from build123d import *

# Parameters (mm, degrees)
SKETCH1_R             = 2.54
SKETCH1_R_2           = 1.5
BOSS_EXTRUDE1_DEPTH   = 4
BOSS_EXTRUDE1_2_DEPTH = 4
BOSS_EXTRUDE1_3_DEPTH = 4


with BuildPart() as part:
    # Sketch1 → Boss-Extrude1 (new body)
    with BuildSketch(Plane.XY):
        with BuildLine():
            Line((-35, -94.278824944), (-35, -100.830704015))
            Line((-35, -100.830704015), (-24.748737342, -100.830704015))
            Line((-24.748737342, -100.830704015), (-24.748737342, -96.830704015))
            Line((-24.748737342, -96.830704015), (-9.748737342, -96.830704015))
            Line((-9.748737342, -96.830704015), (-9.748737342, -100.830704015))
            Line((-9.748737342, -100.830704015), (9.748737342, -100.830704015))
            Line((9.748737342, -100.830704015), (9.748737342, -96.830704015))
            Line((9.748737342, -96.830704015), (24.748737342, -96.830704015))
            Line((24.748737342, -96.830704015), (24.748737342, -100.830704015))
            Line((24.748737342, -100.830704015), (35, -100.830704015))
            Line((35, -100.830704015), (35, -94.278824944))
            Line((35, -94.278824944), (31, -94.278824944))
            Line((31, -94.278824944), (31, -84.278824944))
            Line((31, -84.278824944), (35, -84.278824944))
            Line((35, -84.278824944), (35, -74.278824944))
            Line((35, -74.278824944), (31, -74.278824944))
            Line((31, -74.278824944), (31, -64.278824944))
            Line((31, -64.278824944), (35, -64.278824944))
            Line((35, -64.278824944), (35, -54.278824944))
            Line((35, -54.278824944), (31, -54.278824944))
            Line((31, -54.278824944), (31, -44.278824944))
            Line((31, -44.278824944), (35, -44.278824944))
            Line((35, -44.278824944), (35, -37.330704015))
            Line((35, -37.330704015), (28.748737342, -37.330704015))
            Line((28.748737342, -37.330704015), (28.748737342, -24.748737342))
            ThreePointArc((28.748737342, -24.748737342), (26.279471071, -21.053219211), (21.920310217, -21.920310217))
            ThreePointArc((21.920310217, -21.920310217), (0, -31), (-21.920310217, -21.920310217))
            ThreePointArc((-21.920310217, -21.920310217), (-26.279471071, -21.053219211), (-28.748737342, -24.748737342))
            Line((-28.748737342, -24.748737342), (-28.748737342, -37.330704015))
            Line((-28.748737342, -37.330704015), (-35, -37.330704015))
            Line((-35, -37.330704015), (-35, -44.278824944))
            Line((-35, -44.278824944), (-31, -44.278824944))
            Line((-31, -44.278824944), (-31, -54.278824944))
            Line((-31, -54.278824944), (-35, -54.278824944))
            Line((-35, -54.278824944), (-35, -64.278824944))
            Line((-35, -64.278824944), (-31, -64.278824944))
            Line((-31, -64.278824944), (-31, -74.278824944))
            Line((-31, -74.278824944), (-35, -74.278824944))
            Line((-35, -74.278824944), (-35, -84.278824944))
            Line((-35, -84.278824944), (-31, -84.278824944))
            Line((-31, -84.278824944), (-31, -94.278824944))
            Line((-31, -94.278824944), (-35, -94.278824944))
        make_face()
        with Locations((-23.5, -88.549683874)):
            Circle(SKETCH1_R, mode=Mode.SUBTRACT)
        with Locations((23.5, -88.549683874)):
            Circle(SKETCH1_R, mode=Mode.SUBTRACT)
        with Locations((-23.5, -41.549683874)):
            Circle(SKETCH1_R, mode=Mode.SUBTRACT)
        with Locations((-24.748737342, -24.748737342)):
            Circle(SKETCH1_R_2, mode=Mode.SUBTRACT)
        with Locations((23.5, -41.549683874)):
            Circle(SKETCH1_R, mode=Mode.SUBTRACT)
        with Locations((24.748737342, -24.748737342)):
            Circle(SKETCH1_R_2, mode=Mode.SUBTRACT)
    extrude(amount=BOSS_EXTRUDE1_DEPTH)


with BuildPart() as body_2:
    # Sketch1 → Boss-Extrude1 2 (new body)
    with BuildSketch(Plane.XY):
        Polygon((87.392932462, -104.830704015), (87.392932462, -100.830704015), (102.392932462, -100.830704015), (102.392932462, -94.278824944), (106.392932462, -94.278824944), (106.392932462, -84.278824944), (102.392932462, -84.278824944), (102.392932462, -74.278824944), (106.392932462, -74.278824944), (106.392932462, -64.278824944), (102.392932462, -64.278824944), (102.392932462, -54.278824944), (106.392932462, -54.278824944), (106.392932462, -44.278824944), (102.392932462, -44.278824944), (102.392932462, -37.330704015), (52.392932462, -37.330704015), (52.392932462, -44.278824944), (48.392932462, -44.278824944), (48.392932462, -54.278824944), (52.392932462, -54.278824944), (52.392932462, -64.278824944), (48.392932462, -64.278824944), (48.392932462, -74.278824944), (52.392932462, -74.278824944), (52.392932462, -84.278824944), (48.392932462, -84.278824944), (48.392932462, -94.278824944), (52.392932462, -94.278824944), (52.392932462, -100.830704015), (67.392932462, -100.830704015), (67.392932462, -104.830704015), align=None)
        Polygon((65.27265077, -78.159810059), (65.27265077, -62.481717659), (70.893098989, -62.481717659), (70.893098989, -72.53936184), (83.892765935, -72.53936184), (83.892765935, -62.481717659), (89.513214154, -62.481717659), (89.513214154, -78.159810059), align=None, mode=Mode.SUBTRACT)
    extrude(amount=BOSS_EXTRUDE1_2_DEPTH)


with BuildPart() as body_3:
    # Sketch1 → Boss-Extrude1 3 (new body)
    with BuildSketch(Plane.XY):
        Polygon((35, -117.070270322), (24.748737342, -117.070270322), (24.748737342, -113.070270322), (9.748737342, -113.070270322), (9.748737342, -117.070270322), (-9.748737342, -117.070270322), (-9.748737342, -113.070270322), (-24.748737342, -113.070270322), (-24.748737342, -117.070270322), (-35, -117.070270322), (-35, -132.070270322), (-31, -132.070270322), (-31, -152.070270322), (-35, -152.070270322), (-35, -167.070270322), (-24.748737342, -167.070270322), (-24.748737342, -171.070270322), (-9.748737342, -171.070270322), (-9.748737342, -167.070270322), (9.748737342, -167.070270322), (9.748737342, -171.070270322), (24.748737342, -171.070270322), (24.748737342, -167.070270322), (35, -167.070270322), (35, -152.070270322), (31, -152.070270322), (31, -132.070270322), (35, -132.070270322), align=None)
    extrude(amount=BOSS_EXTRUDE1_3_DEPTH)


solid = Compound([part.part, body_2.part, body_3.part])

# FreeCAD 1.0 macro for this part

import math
import FreeCAD as App
import Part
import Sketcher


def add_polygon(sketch, points):
    """Adds a closed chain of lines whose ends are joined by coincident constraints."""
    first, n = sketch.GeometryCount, len(points)
    for a, b in zip(points, points[1:] + points[:1]):
        sketch.addGeometry(Part.LineSegment(App.Vector(*a, 0), App.Vector(*b, 0)), False)
    for i in range(n):
        sketch.addConstraint(Sketcher.Constraint("Coincident", first + i, 2, first + (i + 1) % n, 1))

doc = App.newDocument("Part")
params = doc.addObject("Spreadsheet::Sheet", "Params")
for row, (alias, value) in enumerate([
    ("sketch1_diameter", "3 mm"),
    ("sketch1_radius", "4 mm"),
    ("sketch1_radius2", "31 mm"),
    ("sketch1_diameter2", "5.08 mm"),
    ("sketch1_width", "15 mm"),
    ("pad1_length", "4 mm"),
    ("sketch2_width", "15 mm"),
    ("sketch2_width2", "4 mm"),
    ("sketch2_width3", "50 mm"),
    ("sketch2_height", "10 mm"),
    ("pad2_length", "4 mm"),
    ("sketch3_width", "15 mm"),
    ("sketch3_width2", "4 mm"),
    ("sketch3_height", "20 mm"),
    ("pad3_length", "4 mm"),
], start=1):
    params.set(f"A{row}", alias)
    params.set(f"B{row}", "=" + value)
    params.setAlias(f"B{row}", alias)

body = doc.addObject("PartDesign::Body", "Body")

# Sketch on XY plane
sketch1 = doc.addObject("Sketcher::SketchObject", "Sketch")
body.addObject(sketch1)
sketch1.AttachmentSupport = (doc.XY_Plane, [""])
sketch1.MapMode = "FlatFace"
sketch1.addGeometry(Part.LineSegment(App.Vector(-35, -94.3, 0), App.Vector(-35, -100.8, 0)), False)
sketch1.addGeometry(Part.LineSegment(App.Vector(-35, -100.8, 0), App.Vector(-24.7, -100.8, 0)), False)
sketch1.addGeometry(Part.LineSegment(App.Vector(-24.7, -100.8, 0), App.Vector(-24.7, -96.8, 0)), False)
sketch1.addGeometry(Part.LineSegment(App.Vector(-24.7, -96.8, 0), App.Vector(-9.7, -96.8, 0)), False)
sketch1.addGeometry(Part.LineSegment(App.Vector(-9.7, -96.8, 0), App.Vector(-9.7, -100.8, 0)), False)
sketch1.addGeometry(Part.LineSegment(App.Vector(-9.7, -100.8, 0), App.Vector(9.7, -100.8, 0)), False)
sketch1.addGeometry(Part.LineSegment(App.Vector(9.7, -100.8, 0), App.Vector(9.7, -96.8, 0)), False)
sketch1.addGeometry(Part.LineSegment(App.Vector(9.7, -96.8, 0), App.Vector(24.7, -96.8, 0)), False)
sketch1.addGeometry(Part.LineSegment(App.Vector(24.7, -96.8, 0), App.Vector(24.7, -100.8, 0)), False)
sketch1.addGeometry(Part.LineSegment(App.Vector(24.7, -100.8, 0), App.Vector(35, -100.8, 0)), False)
sketch1.addGeometry(Part.LineSegment(App.Vector(35, -100.8, 0), App.Vector(35, -94.3, 0)), False)
sketch1.addGeometry(Part.LineSegment(App.Vector(35, -94.3, 0), App.Vector(31, -94.3, 0)), False)
sketch1.addGeometry(Part.LineSegment(App.Vector(31, -94.3, 0), App.Vector(31, -84.3, 0)), False)
sketch1.addGeometry(Part.LineSegment(App.Vector(31, -84.3, 0), App.Vector(35, -84.3, 0)), False)
sketch1.addGeometry(Part.LineSegment(App.Vector(35, -84.3, 0), App.Vector(35, -74.3, 0)), False)
sketch1.addGeometry(Part.LineSegment(App.Vector(35, -74.3, 0), App.Vector(31, -74.3, 0)), False)
sketch1.addGeometry(Part.LineSegment(App.Vector(31, -74.3, 0), App.Vector(31, -64.3, 0)), False)
sketch1.addGeometry(Part.LineSegment(App.Vector(31, -64.3, 0), App.Vector(35, -64.3, 0)), False)
sketch1.addGeometry(Part.LineSegment(App.Vector(35, -64.3, 0), App.Vector(35, -54.3, 0)), False)
sketch1.addGeometry(Part.LineSegment(App.Vector(35, -54.3, 0), App.Vector(31, -54.3, 0)), False)
sketch1.addGeometry(Part.LineSegment(App.Vector(31, -54.3, 0), App.Vector(31, -44.3, 0)), False)
sketch1.addGeometry(Part.LineSegment(App.Vector(31, -44.3, 0), App.Vector(35, -44.3, 0)), False)
sketch1.addGeometry(Part.LineSegment(App.Vector(35, -44.3, 0), App.Vector(35, -37.3, 0)), False)
sketch1.addGeometry(Part.LineSegment(App.Vector(35, -37.3, 0), App.Vector(28.7, -37.3, 0)), False)
sketch1.addGeometry(Part.LineSegment(App.Vector(28.7, -37.3, 0), App.Vector(28.7, -24.7, 0)), False)
sketch1.addGeometry(Part.ArcOfCircle(Part.Circle(App.Vector(24.7, -24.7, 0), App.Vector(0, 0, 1), 4), math.radians(0), math.radians(135)), False)
sketch1.addGeometry(Part.ArcOfCircle(Part.Circle(App.Vector(0, 0, 0), App.Vector(0, 0, 1), 31), math.radians(-135), math.radians(-45)), False)
sketch1.addGeometry(Part.ArcOfCircle(Part.Circle(App.Vector(-24.7, -24.7, 0), App.Vector(0, 0, 1), 4), math.radians(45), math.radians(180)), False)
sketch1.addGeometry(Part.LineSegment(App.Vector(-28.7, -24.7, 0), App.Vector(-28.7, -37.3, 0)), False)
sketch1.addGeometry(Part.LineSegment(App.Vector(-28.7, -37.3, 0), App.Vector(-35, -37.3, 0)), False)
sketch1.addGeometry(Part.LineSegment(App.Vector(-35, -37.3, 0), App.Vector(-35, -44.3, 0)), False)
sketch1.addGeometry(Part.LineSegment(App.Vector(-35, -44.3, 0), App.Vector(-31, -44.3, 0)), False)
sketch1.addGeometry(Part.LineSegment(App.Vector(-31, -44.3, 0), App.Vector(-31, -54.3, 0)), False)
sketch1.addGeometry(Part.LineSegment(App.Vector(-31, -54.3, 0), App.Vector(-35, -54.3, 0)), False)
sketch1.addGeometry(Part.LineSegment(App.Vector(-35, -54.3, 0), App.Vector(-35, -64.3, 0)), False)
sketch1.addGeometry(Part.LineSegment(App.Vector(-35, -64.3, 0), App.Vector(-31, -64.3, 0)), False)
sketch1.addGeometry(Part.LineSegment(App.Vector(-31, -64.3, 0), App.Vector(-31, -74.3, 0)), False)
sketch1.addGeometry(Part.LineSegment(App.Vector(-31, -74.3, 0), App.Vector(-35, -74.3, 0)), False)
sketch1.addGeometry(Part.LineSegment(App.Vector(-35, -74.3, 0), App.Vector(-35, -84.3, 0)), False)
sketch1.addGeometry(Part.LineSegment(App.Vector(-35, -84.3, 0), App.Vector(-31, -84.3, 0)), False)
sketch1.addGeometry(Part.LineSegment(App.Vector(-31, -84.3, 0), App.Vector(-31, -94.3, 0)), False)
sketch1.addGeometry(Part.LineSegment(App.Vector(-31, -94.3, 0), App.Vector(-35, -94.3, 0)), False)
sketch1.addGeometry(Part.Circle(App.Vector(-23.5, -88.5, 0), App.Vector(0, 0, 1), 2.5), False)
sketch1.addGeometry(Part.Circle(App.Vector(23.5, -88.5, 0), App.Vector(0, 0, 1), 2.5), False)
sketch1.addGeometry(Part.Circle(App.Vector(-23.5, -41.5, 0), App.Vector(0, 0, 1), 2.5), False)
sketch1.addGeometry(Part.Circle(App.Vector(-24.7, -24.7, 0), App.Vector(0, 0, 1), 1.5), False)
sketch1.addGeometry(Part.Circle(App.Vector(23.5, -41.5, 0), App.Vector(0, 0, 1), 2.5), False)
sketch1.addGeometry(Part.Circle(App.Vector(24.7, -24.7, 0), App.Vector(0, 0, 1), 1.5), False)
sketch1.addConstraint(Sketcher.Constraint("Coincident", 0, 2, 1, 1))
sketch1.addConstraint(Sketcher.Constraint("Coincident", 1, 2, 2, 1))
sketch1.addConstraint(Sketcher.Constraint("Coincident", 2, 2, 3, 1))
sketch1.addConstraint(Sketcher.Constraint("Coincident", 3, 2, 4, 1))
sketch1.addConstraint(Sketcher.Constraint("Coincident", 4, 2, 5, 1))
sketch1.addConstraint(Sketcher.Constraint("Coincident", 5, 2, 6, 1))
sketch1.addConstraint(Sketcher.Constraint("Coincident", 6, 2, 7, 1))
sketch1.addConstraint(Sketcher.Constraint("Coincident", 7, 2, 8, 1))
sketch1.addConstraint(Sketcher.Constraint("Coincident", 8, 2, 9, 1))
sketch1.addConstraint(Sketcher.Constraint("Coincident", 9, 2, 10, 1))
sketch1.addConstraint(Sketcher.Constraint("Coincident", 10, 2, 11, 1))
sketch1.addConstraint(Sketcher.Constraint("Coincident", 11, 2, 12, 1))
sketch1.addConstraint(Sketcher.Constraint("Coincident", 12, 2, 13, 1))
sketch1.addConstraint(Sketcher.Constraint("Coincident", 13, 2, 14, 1))
sketch1.addConstraint(Sketcher.Constraint("Coincident", 14, 2, 15, 1))
sketch1.addConstraint(Sketcher.Constraint("Coincident", 15, 2, 16, 1))
sketch1.addConstraint(Sketcher.Constraint("Coincident", 16, 2, 17, 1))
sketch1.addConstraint(Sketcher.Constraint("Coincident", 17, 2, 18, 1))
sketch1.addConstraint(Sketcher.Constraint("Coincident", 18, 2, 19, 1))
sketch1.addConstraint(Sketcher.Constraint("Coincident", 19, 2, 20, 1))
sketch1.addConstraint(Sketcher.Constraint("Coincident", 20, 2, 21, 1))
sketch1.addConstraint(Sketcher.Constraint("Coincident", 21, 2, 22, 1))
sketch1.addConstraint(Sketcher.Constraint("Coincident", 22, 2, 23, 1))
sketch1.addConstraint(Sketcher.Constraint("Coincident", 23, 2, 24, 1))
sketch1.addConstraint(Sketcher.Constraint("Tangent", 24, 2, 25, 1))
sketch1.addConstraint(Sketcher.Constraint("Tangent", 25, 2, 26, 2))
sketch1.addConstraint(Sketcher.Constraint("Tangent", 26, 1, 27, 1))
sketch1.addConstraint(Sketcher.Constraint("Tangent", 27, 2, 28, 1))
sketch1.addConstraint(Sketcher.Constraint("Coincident", 28, 2, 29, 1))
sketch1.addConstraint(Sketcher.Constraint("Coincident", 29, 2, 30, 1))
sketch1.addConstraint(Sketcher.Constraint("Coincident", 30, 2, 31, 1))
sketch1.addConstraint(Sketcher.Constraint("Coincident", 31, 2, 32, 1))
sketch1.addConstraint(Sketcher.Constraint("Coincident", 32, 2, 33, 1))
sketch1.addConstraint(Sketcher.Constraint("Coincident", 33, 2, 34, 1))
sketch1.addConstraint(Sketcher.Constraint("Coincident", 34, 2, 35, 1))
sketch1.addConstraint(Sketcher.Constraint("Coincident", 35, 2, 36, 1))
sketch1.addConstraint(Sketcher.Constraint("Coincident", 36, 2, 37, 1))
sketch1.addConstraint(Sketcher.Constraint("Coincident", 37, 2, 38, 1))
sketch1.addConstraint(Sketcher.Constraint("Coincident", 38, 2, 39, 1))
sketch1.addConstraint(Sketcher.Constraint("Coincident", 39, 2, 40, 1))
sketch1.addConstraint(Sketcher.Constraint("Coincident", 40, 2, 41, 1))
sketch1.addConstraint(Sketcher.Constraint("Coincident", 41, 2, 0, 1))
sketch1.addConstraint(Sketcher.Constraint("Vertical", 0))
sketch1.addConstraint(Sketcher.Constraint("Horizontal", 1))
sketch1.addConstraint(Sketcher.Constraint("Vertical", 2))
sketch1.addConstraint(Sketcher.Constraint("Horizontal", 3))
sketch1.addConstraint(Sketcher.Constraint("Vertical", 4))
sketch1.addConstraint(Sketcher.Constraint("Horizontal", 5))
sketch1.addConstraint(Sketcher.Constraint("Vertical", 6))
sketch1.addConstraint(Sketcher.Constraint("Horizontal", 7))
sketch1.addConstraint(Sketcher.Constraint("Vertical", 8))
sketch1.addConstraint(Sketcher.Constraint("Horizontal", 9))
sketch1.addConstraint(Sketcher.Constraint("Vertical", 10))
sketch1.addConstraint(Sketcher.Constraint("Horizontal", 11))
sketch1.addConstraint(Sketcher.Constraint("Vertical", 12))
sketch1.addConstraint(Sketcher.Constraint("Horizontal", 13))
sketch1.addConstraint(Sketcher.Constraint("Vertical", 14))
sketch1.addConstraint(Sketcher.Constraint("Horizontal", 15))
sketch1.addConstraint(Sketcher.Constraint("Vertical", 16))
sketch1.addConstraint(Sketcher.Constraint("Horizontal", 17))
sketch1.addConstraint(Sketcher.Constraint("Vertical", 18))
sketch1.addConstraint(Sketcher.Constraint("Horizontal", 19))
sketch1.addConstraint(Sketcher.Constraint("Vertical", 20))
sketch1.addConstraint(Sketcher.Constraint("Horizontal", 21))
sketch1.addConstraint(Sketcher.Constraint("Vertical", 22))
sketch1.addConstraint(Sketcher.Constraint("Horizontal", 23))
sketch1.addConstraint(Sketcher.Constraint("Vertical", 24))
sketch1.addConstraint(Sketcher.Constraint("Vertical", 28))
sketch1.addConstraint(Sketcher.Constraint("Horizontal", 29))
sketch1.addConstraint(Sketcher.Constraint("Vertical", 30))
sketch1.addConstraint(Sketcher.Constraint("Horizontal", 31))
sketch1.addConstraint(Sketcher.Constraint("Vertical", 32))
sketch1.addConstraint(Sketcher.Constraint("Horizontal", 33))
sketch1.addConstraint(Sketcher.Constraint("Vertical", 34))
sketch1.addConstraint(Sketcher.Constraint("Horizontal", 35))
sketch1.addConstraint(Sketcher.Constraint("Vertical", 36))
sketch1.addConstraint(Sketcher.Constraint("Horizontal", 37))
sketch1.addConstraint(Sketcher.Constraint("Vertical", 38))
sketch1.addConstraint(Sketcher.Constraint("Horizontal", 39))
sketch1.addConstraint(Sketcher.Constraint("Vertical", 40))
sketch1.addConstraint(Sketcher.Constraint("Horizontal", 41))
sketch1.addConstraint(Sketcher.Constraint("Coincident", 26, 3, -1, 1))
sketch1.addConstraint(Sketcher.Constraint("Coincident", 45, 3, 27, 3))
sketch1.addConstraint(Sketcher.Constraint("Coincident", 47, 3, 25, 3))
sketch1.addConstraint(Sketcher.Constraint("Equal", 25, 27))
sketch1.addConstraint(Sketcher.Constraint("Equal", 42, 43))
sketch1.addConstraint(Sketcher.Constraint("Equal", 43, 44))
sketch1.addConstraint(Sketcher.Constraint("Equal", 44, 46))
sketch1.addConstraint(Sketcher.Constraint("Equal", 45, 47))
sketch1.addConstraint(Sketcher.Constraint("Symmetric", 42, 3, 43, 3, -2))
sketch1.addConstraint(Sketcher.Constraint("Symmetric", 44, 3, 46, 3, -2))
sketch1.addConstraint(Sketcher.Constraint("Symmetric", 3, 2, 6, 2, -2))
sketch1.addConstraint(Sketcher.Constraint("Symmetric", 1, 2, 8, 2, -2))
sketch1.addConstraint(Sketcher.Constraint("Symmetric", 23, 2, 28, 2, -2))
sketch1.addConstraint(Sketcher.Constraint("Symmetric", 21, 2, 30, 2, -2))
sketch1.addConstraint(Sketcher.Constraint("Symmetric", 19, 2, 32, 2, -2))
sketch1.addConstraint(Sketcher.Constraint("Symmetric", 17, 2, 34, 2, -2))
sketch1.addConstraint(Sketcher.Constraint("Symmetric", 15, 2, 36, 2, -2))
sketch1.addConstraint(Sketcher.Constraint("Symmetric", 13, 2, 38, 2, -2))
sketch1.addConstraint(Sketcher.Constraint("Symmetric", 11, 2, 40, 2, -2))
sketch1.addConstraint(Sketcher.Constraint("Horizontal", 1, 2, 4, 2))
sketch1.addConstraint(Sketcher.Constraint("Vertical", 42, 3, 44, 3))
sketch1.addConstraint(Sketcher.Constraint("Vertical", 45, 3, 1, 2))
sketch1.addConstraint(Sketcher.Constraint("Vertical", 10, 2, 13, 2))
sketch1.addConstraint(Sketcher.Constraint("Vertical", 12, 2, 15, 2))
sketch1.addConstraint(Sketcher.Constraint("Vertical", 14, 2, 17, 2))
sketch1.addConstraint(Sketcher.Constraint("Vertical", 16, 2, 19, 2))
sketch1.addConstraint(Sketcher.Constraint("Vertical", 18, 2, 21, 2))
sketch1.addConstraint(Sketcher.Constraint("Vertical", 0, 2, 29, 2))
sketch1.addConstraint(Sketcher.Constraint("Equal", 41, 2))
sketch1.addConstraint(Sketcher.Constraint("Equal", 12, 14))
sketch1.addConstraint(Sketcher.Constraint("Equal", 14, 16))
sketch1.addConstraint(Sketcher.Constraint("Equal", 16, 18))
sketch1.addConstraint(Sketcher.Constraint("Equal", 18, 20))
sketch1.addConstraint(Sketcher.Constraint("Diameter", 45, 3.0))
sketch1.addConstraint(Sketcher.Constraint("Radius", 25, 4.0))
sketch1.addConstraint(Sketcher.Constraint("Radius", 26, 31.0))
sketch1.addConstraint(Sketcher.Constraint("Diameter", 42, 5.08))
sketch1.addConstraint(Sketcher.Constraint("DistanceX", 3, 1, 3, 2, 15.0))
sketch1.addConstraint(Sketcher.Constraint("DistanceX", 11, 2, 11, 1, 4.0))
sketch1.addConstraint(Sketcher.Constraint("DistanceY", 12, 1, 12, 2, 10.0))
sketch1.addConstraint(Sketcher.Constraint("DistanceX", 0, 2, -1, 1, 35.0))
sketch1.addConstraint(Sketcher.Constraint("DistanceX", 42, 3, 43, 3, 47.0))
sketch1.addConstraint(Sketcher.Constraint("DistanceY", 42, 3, 44, 3, 47.0))
sketch1.addConstraint(Sketcher.Constraint("DistanceY", 0, 2, 0, 1, 6.551879))
sketch1.addConstraint(Sketcher.Constraint("DistanceY", 22, 1, 22, 2, 6.948121))
sketch1.addConstraint(Sketcher.Constraint("DistanceX", 1, 1, 1, 2, 10.251263))
sketch1.addConstraint(Sketcher.Constraint("DistanceY", 24, 1, 24, 2, 12.581967))
sketch1.addConstraint(Sketcher.Constraint("DistanceY", 0, 2, 42, 3, 12.28102))
sketch1.setExpression("Constraints[114]", "Params.sketch1_diameter")
sketch1.setExpression("Constraints[115]", "Params.sketch1_radius")
sketch1.setExpression("Constraints[116]", "Params.sketch1_radius2")
sketch1.setExpression("Constraints[117]", "Params.sketch1_diameter2")
sketch1.setExpression("Constraints[118]", "Params.sketch1_width")
pad1 = doc.addObject("PartDesign::Pad", "Pad")
body.addObject(pad1)
pad1.Profile = sketch1
pad1.setExpression("Length", "Params.pad1_length")
body2 = doc.addObject("PartDesign::Body", "Body001")

# Sketch on XY plane
sketch2 = doc.addObject("Sketcher::SketchObject", "Sketch001")
body2.addObject(sketch2)
sketch2.AttachmentSupport = (doc.getObject("XY_Plane001"), [""])
sketch2.MapMode = "FlatFace"
add_polygon(sketch2, [(87.4, -104.8), (87.4, -100.8), (102.4, -100.8), (102.4, -94.3), (106.4, -94.3), (106.4, -84.3), (102.4, -84.3), (102.4, -74.3), (106.4, -74.3), (106.4, -64.3), (102.4, -64.3), (102.4, -54.3), (106.4, -54.3), (106.4, -44.3), (102.4, -44.3), (102.4, -37.3), (52.4, -37.3), (52.4, -44.3), (48.4, -44.3), (48.4, -54.3), (52.4, -54.3), (52.4, -64.3), (48.4, -64.3), (48.4, -74.3), (52.4, -74.3), (52.4, -84.3), (48.4, -84.3), (48.4, -94.3), (52.4, -94.3), (52.4, -100.8), (67.4, -100.8), (67.4, -104.8)])  # lines 0-31
add_polygon(sketch2, [(89.5, -78.2), (65.3, -78.2), (65.3, -62.5), (70.9, -62.5), (70.9, -72.5), (83.9, -72.5), (83.9, -62.5), (89.5, -62.5)])  # lines 32-39
sketch2.addConstraint(Sketcher.Constraint("Vertical", 0))
sketch2.addConstraint(Sketcher.Constraint("Horizontal", 1))
sketch2.addConstraint(Sketcher.Constraint("Vertical", 2))
sketch2.addConstraint(Sketcher.Constraint("Horizontal", 3))
sketch2.addConstraint(Sketcher.Constraint("Vertical", 4))
sketch2.addConstraint(Sketcher.Constraint("Horizontal", 5))
sketch2.addConstraint(Sketcher.Constraint("Vertical", 6))
sketch2.addConstraint(Sketcher.Constraint("Horizontal", 7))
sketch2.addConstraint(Sketcher.Constraint("Vertical", 8))
sketch2.addConstraint(Sketcher.Constraint("Horizontal", 9))
sketch2.addConstraint(Sketcher.Constraint("Vertical", 10))
sketch2.addConstraint(Sketcher.Constraint("Horizontal", 11))
sketch2.addConstraint(Sketcher.Constraint("Vertical", 12))
sketch2.addConstraint(Sketcher.Constraint("Horizontal", 13))
sketch2.addConstraint(Sketcher.Constraint("Vertical", 14))
sketch2.addConstraint(Sketcher.Constraint("Horizontal", 15))
sketch2.addConstraint(Sketcher.Constraint("Vertical", 16))
sketch2.addConstraint(Sketcher.Constraint("Horizontal", 17))
sketch2.addConstraint(Sketcher.Constraint("Vertical", 18))
sketch2.addConstraint(Sketcher.Constraint("Horizontal", 19))
sketch2.addConstraint(Sketcher.Constraint("Vertical", 20))
sketch2.addConstraint(Sketcher.Constraint("Horizontal", 21))
sketch2.addConstraint(Sketcher.Constraint("Vertical", 22))
sketch2.addConstraint(Sketcher.Constraint("Horizontal", 23))
sketch2.addConstraint(Sketcher.Constraint("Vertical", 24))
sketch2.addConstraint(Sketcher.Constraint("Horizontal", 25))
sketch2.addConstraint(Sketcher.Constraint("Vertical", 26))
sketch2.addConstraint(Sketcher.Constraint("Horizontal", 27))
sketch2.addConstraint(Sketcher.Constraint("Vertical", 28))
sketch2.addConstraint(Sketcher.Constraint("Horizontal", 29))
sketch2.addConstraint(Sketcher.Constraint("Vertical", 30))
sketch2.addConstraint(Sketcher.Constraint("Horizontal", 31))
sketch2.addConstraint(Sketcher.Constraint("Horizontal", 32))
sketch2.addConstraint(Sketcher.Constraint("Vertical", 33))
sketch2.addConstraint(Sketcher.Constraint("Horizontal", 34))
sketch2.addConstraint(Sketcher.Constraint("Vertical", 35))
sketch2.addConstraint(Sketcher.Constraint("Horizontal", 36))
sketch2.addConstraint(Sketcher.Constraint("Vertical", 37))
sketch2.addConstraint(Sketcher.Constraint("Horizontal", 38))
sketch2.addConstraint(Sketcher.Constraint("Vertical", 39))
sketch2.addConstraint(Sketcher.Constraint("Horizontal", 13, 2, 16, 2))
sketch2.addConstraint(Sketcher.Constraint("Horizontal", 11, 2, 18, 2))
sketch2.addConstraint(Sketcher.Constraint("Horizontal", 9, 2, 20, 2))
sketch2.addConstraint(Sketcher.Constraint("Horizontal", 7, 2, 22, 2))
sketch2.addConstraint(Sketcher.Constraint("Horizontal", 5, 2, 24, 2))
sketch2.addConstraint(Sketcher.Constraint("Horizontal", 3, 2, 26, 2))
sketch2.addConstraint(Sketcher.Constraint("Horizontal", 1, 2, 28, 2))
sketch2.addConstraint(Sketcher.Constraint("Horizontal", 34, 2, 37, 2))
sketch2.addConstraint(Sketcher.Constraint("Vertical", 2, 2, 5, 2))
sketch2.addConstraint(Sketcher.Constraint("Vertical", 4, 2, 7, 2))
sketch2.addConstraint(Sketcher.Constraint("Vertical", 6, 2, 9, 2))
sketch2.addConstraint(Sketcher.Constraint("Vertical", 8, 2, 11, 2))
sketch2.addConstraint(Sketcher.Constraint("Vertical", 10, 2, 13, 2))
sketch2.addConstraint(Sketcher.Constraint("Vertical", 16, 2, 19, 2))
sketch2.addConstraint(Sketcher.Constraint("Vertical", 18, 2, 21, 2))
sketch2.addConstraint(Sketcher.Constraint("Vertical", 20, 2, 23, 2))
sketch2.addConstraint(Sketcher.Constraint("Vertical", 22, 2, 25, 2))
sketch2.addConstraint(Sketcher.Constraint("Vertical", 24, 2, 27, 2))
sketch2.addConstraint(Sketcher.Constraint("Equal", 13, 17))
sketch2.addConstraint(Sketcher.Constraint("Equal", 1, 29))
sketch2.addConstraint(Sketcher.Constraint("Equal", 34, 38))
sketch2.addConstraint(Sketcher.Constraint("Equal", 27, 0))
sketch2.addConstraint(Sketcher.Constraint("Equal", 4, 6))
sketch2.addConstraint(Sketcher.Constraint("Equal", 6, 8))
sketch2.addConstraint(Sketcher.Constraint("Equal", 8, 10))
sketch2.addConstraint(Sketcher.Constraint("Equal", 10, 12))
sketch2.addConstraint(Sketcher.Constraint("DistanceX", 1, 1, 1, 2, 15.0))
sketch2.addConstraint(Sketcher.Constraint("DistanceX", 3, 1, 3, 2, 4.0))
sketch2.addConstraint(Sketcher.Constraint("DistanceX", 15, 2, 15, 1, 50.0))
sketch2.addConstraint(Sketcher.Constraint("DistanceY", 4, 1, 4, 2, 10.0))
sketch2.addConstraint(Sketcher.Constraint("DistanceX", 34, 1, 34, 2, 5.620448))
sketch2.addConstraint(Sketcher.Constraint("DistanceY", 2, 1, 2, 2, 6.551879))
sketch2.addConstraint(Sketcher.Constraint("DistanceY", 14, 1, 14, 2, 6.948121))
sketch2.addConstraint(Sketcher.Constraint("DistanceX", -1, 1, 34, 2, 70.893099))
sketch2.addConstraint(Sketcher.Constraint("DistanceX", 32, 2, 32, 1, 24.240563))
sketch2.addConstraint(Sketcher.Constraint("DistanceY", 33, 1, 33, 2, 15.678092))
sketch2.addConstraint(Sketcher.Constraint("DistanceY", 35, 2, 35, 1, 10.057644))
sketch2.addConstraint(Sketcher.Constraint("DistanceY", 32, 2, -1, 1, 78.15981))
sketch2.addConstraint(Sketcher.Constraint("DistanceX", 23, 2, 32, 2, 12.879718))
sketch2.addConstraint(Sketcher.Constraint("DistanceY", 0, 2, -1, 1, 100.830704))
sketch2.setExpression("Constraints[106]", "Params.sketch2_width")
sketch2.setExpression("Constraints[107]", "Params.sketch2_width2")
sketch2.setExpression("Constraints[108]", "Params.sketch2_width3")
sketch2.setExpression("Constraints[109]", "Params.sketch2_height")
pad2 = doc.addObject("PartDesign::Pad", "Pad001")
body2.addObject(pad2)
pad2.Profile = sketch2
pad2.setExpression("Length", "Params.pad2_length")
body3 = doc.addObject("PartDesign::Body", "Body002")

# Sketch on XY plane
sketch3 = doc.addObject("Sketcher::SketchObject", "Sketch002")
body3.addObject(sketch3)
sketch3.AttachmentSupport = (doc.getObject("XY_Plane002"), [""])
sketch3.MapMode = "FlatFace"
add_polygon(sketch3, [(35, -117.1), (24.7, -117.1), (24.7, -113.1), (9.7, -113.1), (9.7, -117.1), (-9.7, -117.1), (-9.7, -113.1), (-24.7, -113.1), (-24.7, -117.1), (-35, -117.1), (-35, -132.1), (-31, -132.1), (-31, -152.1), (-35, -152.1), (-35, -167.1), (-24.7, -167.1), (-24.7, -171.1), (-9.7, -171.1), (-9.7, -167.1), (9.7, -167.1), (9.7, -171.1), (24.7, -171.1), (24.7, -167.1), (35, -167.1), (35, -152.1), (31, -152.1), (31, -132.1), (35, -132.1)])  # lines 0-27
sketch3.addConstraint(Sketcher.Constraint("Horizontal", 0))
sketch3.addConstraint(Sketcher.Constraint("Vertical", 1))
sketch3.addConstraint(Sketcher.Constraint("Horizontal", 2))
sketch3.addConstraint(Sketcher.Constraint("Vertical", 3))
sketch3.addConstraint(Sketcher.Constraint("Horizontal", 4))
sketch3.addConstraint(Sketcher.Constraint("Vertical", 5))
sketch3.addConstraint(Sketcher.Constraint("Horizontal", 6))
sketch3.addConstraint(Sketcher.Constraint("Vertical", 7))
sketch3.addConstraint(Sketcher.Constraint("Horizontal", 8))
sketch3.addConstraint(Sketcher.Constraint("Vertical", 9))
sketch3.addConstraint(Sketcher.Constraint("Horizontal", 10))
sketch3.addConstraint(Sketcher.Constraint("Vertical", 11))
sketch3.addConstraint(Sketcher.Constraint("Horizontal", 12))
sketch3.addConstraint(Sketcher.Constraint("Vertical", 13))
sketch3.addConstraint(Sketcher.Constraint("Horizontal", 14))
sketch3.addConstraint(Sketcher.Constraint("Vertical", 15))
sketch3.addConstraint(Sketcher.Constraint("Horizontal", 16))
sketch3.addConstraint(Sketcher.Constraint("Vertical", 17))
sketch3.addConstraint(Sketcher.Constraint("Horizontal", 18))
sketch3.addConstraint(Sketcher.Constraint("Vertical", 19))
sketch3.addConstraint(Sketcher.Constraint("Horizontal", 20))
sketch3.addConstraint(Sketcher.Constraint("Vertical", 21))
sketch3.addConstraint(Sketcher.Constraint("Horizontal", 22))
sketch3.addConstraint(Sketcher.Constraint("Vertical", 23))
sketch3.addConstraint(Sketcher.Constraint("Horizontal", 24))
sketch3.addConstraint(Sketcher.Constraint("Vertical", 25))
sketch3.addConstraint(Sketcher.Constraint("Horizontal", 26))
sketch3.addConstraint(Sketcher.Constraint("Vertical", 27))
sketch3.addConstraint(Sketcher.Constraint("Symmetric", 2, 2, 5, 2, -2))
sketch3.addConstraint(Sketcher.Constraint("Symmetric", 0, 2, 7, 2, -2))
sketch3.addConstraint(Sketcher.Constraint("Symmetric", 16, 2, 19, 2, -2))
sketch3.addConstraint(Sketcher.Constraint("Symmetric", 14, 2, 21, 2, -2))
sketch3.addConstraint(Sketcher.Constraint("Symmetric", 12, 2, 23, 2, -2))
sketch3.addConstraint(Sketcher.Constraint("Symmetric", 10, 2, 25, 2, -2))
sketch3.addConstraint(Sketcher.Constraint("Horizontal", 0, 2, 3, 2))
sketch3.addConstraint(Sketcher.Constraint("Horizontal", 14, 2, 17, 2))
sketch3.addConstraint(Sketcher.Constraint("Vertical", 9, 2, 12, 2))
sketch3.addConstraint(Sketcher.Constraint("Vertical", 7, 2, 14, 2))
sketch3.addConstraint(Sketcher.Constraint("Vertical", 5, 2, 16, 2))
sketch3.addConstraint(Sketcher.Constraint("Vertical", 23, 2, 26, 2))
sketch3.addConstraint(Sketcher.Constraint("Equal", 26, 1))
sketch3.addConstraint(Sketcher.Constraint("Equal", 20, 9))
sketch3.addConstraint(Sketcher.Constraint("Equal", 9, 13))
sketch3.addConstraint(Sketcher.Constraint("Equal", 7, 15))
sketch3.addConstraint(Sketcher.Constraint("DistanceX", 2, 2, 2, 1, 15.0))
sketch3.addConstraint(Sketcher.Constraint("DistanceX", 10, 1, 10, 2, 4.0))
sketch3.addConstraint(Sketcher.Constraint("DistanceY", 11, 2, 11, 1, 20.0))
sketch3.addConstraint(Sketcher.Constraint("DistanceX", 8, 2, -1, 1, 35.0))
sketch3.addConstraint(Sketcher.Constraint("DistanceX", 0, 2, 0, 1, 10.251263))
sketch3.addConstraint(Sketcher.Constraint("DistanceY", 0, 2, -1, 1, 117.07027))
sketch3.setExpression("Constraints[72]", "Params.sketch3_width")
sketch3.setExpression("Constraints[73]", "Params.sketch3_width2")
sketch3.setExpression("Constraints[74]", "Params.sketch3_height")
pad3 = doc.addObject("PartDesign::Pad", "Pad002")
body3.addObject(pad3)
pad3.Profile = sketch3
pad3.setExpression("Length", "Params.pad3_length")

doc.recompute()
